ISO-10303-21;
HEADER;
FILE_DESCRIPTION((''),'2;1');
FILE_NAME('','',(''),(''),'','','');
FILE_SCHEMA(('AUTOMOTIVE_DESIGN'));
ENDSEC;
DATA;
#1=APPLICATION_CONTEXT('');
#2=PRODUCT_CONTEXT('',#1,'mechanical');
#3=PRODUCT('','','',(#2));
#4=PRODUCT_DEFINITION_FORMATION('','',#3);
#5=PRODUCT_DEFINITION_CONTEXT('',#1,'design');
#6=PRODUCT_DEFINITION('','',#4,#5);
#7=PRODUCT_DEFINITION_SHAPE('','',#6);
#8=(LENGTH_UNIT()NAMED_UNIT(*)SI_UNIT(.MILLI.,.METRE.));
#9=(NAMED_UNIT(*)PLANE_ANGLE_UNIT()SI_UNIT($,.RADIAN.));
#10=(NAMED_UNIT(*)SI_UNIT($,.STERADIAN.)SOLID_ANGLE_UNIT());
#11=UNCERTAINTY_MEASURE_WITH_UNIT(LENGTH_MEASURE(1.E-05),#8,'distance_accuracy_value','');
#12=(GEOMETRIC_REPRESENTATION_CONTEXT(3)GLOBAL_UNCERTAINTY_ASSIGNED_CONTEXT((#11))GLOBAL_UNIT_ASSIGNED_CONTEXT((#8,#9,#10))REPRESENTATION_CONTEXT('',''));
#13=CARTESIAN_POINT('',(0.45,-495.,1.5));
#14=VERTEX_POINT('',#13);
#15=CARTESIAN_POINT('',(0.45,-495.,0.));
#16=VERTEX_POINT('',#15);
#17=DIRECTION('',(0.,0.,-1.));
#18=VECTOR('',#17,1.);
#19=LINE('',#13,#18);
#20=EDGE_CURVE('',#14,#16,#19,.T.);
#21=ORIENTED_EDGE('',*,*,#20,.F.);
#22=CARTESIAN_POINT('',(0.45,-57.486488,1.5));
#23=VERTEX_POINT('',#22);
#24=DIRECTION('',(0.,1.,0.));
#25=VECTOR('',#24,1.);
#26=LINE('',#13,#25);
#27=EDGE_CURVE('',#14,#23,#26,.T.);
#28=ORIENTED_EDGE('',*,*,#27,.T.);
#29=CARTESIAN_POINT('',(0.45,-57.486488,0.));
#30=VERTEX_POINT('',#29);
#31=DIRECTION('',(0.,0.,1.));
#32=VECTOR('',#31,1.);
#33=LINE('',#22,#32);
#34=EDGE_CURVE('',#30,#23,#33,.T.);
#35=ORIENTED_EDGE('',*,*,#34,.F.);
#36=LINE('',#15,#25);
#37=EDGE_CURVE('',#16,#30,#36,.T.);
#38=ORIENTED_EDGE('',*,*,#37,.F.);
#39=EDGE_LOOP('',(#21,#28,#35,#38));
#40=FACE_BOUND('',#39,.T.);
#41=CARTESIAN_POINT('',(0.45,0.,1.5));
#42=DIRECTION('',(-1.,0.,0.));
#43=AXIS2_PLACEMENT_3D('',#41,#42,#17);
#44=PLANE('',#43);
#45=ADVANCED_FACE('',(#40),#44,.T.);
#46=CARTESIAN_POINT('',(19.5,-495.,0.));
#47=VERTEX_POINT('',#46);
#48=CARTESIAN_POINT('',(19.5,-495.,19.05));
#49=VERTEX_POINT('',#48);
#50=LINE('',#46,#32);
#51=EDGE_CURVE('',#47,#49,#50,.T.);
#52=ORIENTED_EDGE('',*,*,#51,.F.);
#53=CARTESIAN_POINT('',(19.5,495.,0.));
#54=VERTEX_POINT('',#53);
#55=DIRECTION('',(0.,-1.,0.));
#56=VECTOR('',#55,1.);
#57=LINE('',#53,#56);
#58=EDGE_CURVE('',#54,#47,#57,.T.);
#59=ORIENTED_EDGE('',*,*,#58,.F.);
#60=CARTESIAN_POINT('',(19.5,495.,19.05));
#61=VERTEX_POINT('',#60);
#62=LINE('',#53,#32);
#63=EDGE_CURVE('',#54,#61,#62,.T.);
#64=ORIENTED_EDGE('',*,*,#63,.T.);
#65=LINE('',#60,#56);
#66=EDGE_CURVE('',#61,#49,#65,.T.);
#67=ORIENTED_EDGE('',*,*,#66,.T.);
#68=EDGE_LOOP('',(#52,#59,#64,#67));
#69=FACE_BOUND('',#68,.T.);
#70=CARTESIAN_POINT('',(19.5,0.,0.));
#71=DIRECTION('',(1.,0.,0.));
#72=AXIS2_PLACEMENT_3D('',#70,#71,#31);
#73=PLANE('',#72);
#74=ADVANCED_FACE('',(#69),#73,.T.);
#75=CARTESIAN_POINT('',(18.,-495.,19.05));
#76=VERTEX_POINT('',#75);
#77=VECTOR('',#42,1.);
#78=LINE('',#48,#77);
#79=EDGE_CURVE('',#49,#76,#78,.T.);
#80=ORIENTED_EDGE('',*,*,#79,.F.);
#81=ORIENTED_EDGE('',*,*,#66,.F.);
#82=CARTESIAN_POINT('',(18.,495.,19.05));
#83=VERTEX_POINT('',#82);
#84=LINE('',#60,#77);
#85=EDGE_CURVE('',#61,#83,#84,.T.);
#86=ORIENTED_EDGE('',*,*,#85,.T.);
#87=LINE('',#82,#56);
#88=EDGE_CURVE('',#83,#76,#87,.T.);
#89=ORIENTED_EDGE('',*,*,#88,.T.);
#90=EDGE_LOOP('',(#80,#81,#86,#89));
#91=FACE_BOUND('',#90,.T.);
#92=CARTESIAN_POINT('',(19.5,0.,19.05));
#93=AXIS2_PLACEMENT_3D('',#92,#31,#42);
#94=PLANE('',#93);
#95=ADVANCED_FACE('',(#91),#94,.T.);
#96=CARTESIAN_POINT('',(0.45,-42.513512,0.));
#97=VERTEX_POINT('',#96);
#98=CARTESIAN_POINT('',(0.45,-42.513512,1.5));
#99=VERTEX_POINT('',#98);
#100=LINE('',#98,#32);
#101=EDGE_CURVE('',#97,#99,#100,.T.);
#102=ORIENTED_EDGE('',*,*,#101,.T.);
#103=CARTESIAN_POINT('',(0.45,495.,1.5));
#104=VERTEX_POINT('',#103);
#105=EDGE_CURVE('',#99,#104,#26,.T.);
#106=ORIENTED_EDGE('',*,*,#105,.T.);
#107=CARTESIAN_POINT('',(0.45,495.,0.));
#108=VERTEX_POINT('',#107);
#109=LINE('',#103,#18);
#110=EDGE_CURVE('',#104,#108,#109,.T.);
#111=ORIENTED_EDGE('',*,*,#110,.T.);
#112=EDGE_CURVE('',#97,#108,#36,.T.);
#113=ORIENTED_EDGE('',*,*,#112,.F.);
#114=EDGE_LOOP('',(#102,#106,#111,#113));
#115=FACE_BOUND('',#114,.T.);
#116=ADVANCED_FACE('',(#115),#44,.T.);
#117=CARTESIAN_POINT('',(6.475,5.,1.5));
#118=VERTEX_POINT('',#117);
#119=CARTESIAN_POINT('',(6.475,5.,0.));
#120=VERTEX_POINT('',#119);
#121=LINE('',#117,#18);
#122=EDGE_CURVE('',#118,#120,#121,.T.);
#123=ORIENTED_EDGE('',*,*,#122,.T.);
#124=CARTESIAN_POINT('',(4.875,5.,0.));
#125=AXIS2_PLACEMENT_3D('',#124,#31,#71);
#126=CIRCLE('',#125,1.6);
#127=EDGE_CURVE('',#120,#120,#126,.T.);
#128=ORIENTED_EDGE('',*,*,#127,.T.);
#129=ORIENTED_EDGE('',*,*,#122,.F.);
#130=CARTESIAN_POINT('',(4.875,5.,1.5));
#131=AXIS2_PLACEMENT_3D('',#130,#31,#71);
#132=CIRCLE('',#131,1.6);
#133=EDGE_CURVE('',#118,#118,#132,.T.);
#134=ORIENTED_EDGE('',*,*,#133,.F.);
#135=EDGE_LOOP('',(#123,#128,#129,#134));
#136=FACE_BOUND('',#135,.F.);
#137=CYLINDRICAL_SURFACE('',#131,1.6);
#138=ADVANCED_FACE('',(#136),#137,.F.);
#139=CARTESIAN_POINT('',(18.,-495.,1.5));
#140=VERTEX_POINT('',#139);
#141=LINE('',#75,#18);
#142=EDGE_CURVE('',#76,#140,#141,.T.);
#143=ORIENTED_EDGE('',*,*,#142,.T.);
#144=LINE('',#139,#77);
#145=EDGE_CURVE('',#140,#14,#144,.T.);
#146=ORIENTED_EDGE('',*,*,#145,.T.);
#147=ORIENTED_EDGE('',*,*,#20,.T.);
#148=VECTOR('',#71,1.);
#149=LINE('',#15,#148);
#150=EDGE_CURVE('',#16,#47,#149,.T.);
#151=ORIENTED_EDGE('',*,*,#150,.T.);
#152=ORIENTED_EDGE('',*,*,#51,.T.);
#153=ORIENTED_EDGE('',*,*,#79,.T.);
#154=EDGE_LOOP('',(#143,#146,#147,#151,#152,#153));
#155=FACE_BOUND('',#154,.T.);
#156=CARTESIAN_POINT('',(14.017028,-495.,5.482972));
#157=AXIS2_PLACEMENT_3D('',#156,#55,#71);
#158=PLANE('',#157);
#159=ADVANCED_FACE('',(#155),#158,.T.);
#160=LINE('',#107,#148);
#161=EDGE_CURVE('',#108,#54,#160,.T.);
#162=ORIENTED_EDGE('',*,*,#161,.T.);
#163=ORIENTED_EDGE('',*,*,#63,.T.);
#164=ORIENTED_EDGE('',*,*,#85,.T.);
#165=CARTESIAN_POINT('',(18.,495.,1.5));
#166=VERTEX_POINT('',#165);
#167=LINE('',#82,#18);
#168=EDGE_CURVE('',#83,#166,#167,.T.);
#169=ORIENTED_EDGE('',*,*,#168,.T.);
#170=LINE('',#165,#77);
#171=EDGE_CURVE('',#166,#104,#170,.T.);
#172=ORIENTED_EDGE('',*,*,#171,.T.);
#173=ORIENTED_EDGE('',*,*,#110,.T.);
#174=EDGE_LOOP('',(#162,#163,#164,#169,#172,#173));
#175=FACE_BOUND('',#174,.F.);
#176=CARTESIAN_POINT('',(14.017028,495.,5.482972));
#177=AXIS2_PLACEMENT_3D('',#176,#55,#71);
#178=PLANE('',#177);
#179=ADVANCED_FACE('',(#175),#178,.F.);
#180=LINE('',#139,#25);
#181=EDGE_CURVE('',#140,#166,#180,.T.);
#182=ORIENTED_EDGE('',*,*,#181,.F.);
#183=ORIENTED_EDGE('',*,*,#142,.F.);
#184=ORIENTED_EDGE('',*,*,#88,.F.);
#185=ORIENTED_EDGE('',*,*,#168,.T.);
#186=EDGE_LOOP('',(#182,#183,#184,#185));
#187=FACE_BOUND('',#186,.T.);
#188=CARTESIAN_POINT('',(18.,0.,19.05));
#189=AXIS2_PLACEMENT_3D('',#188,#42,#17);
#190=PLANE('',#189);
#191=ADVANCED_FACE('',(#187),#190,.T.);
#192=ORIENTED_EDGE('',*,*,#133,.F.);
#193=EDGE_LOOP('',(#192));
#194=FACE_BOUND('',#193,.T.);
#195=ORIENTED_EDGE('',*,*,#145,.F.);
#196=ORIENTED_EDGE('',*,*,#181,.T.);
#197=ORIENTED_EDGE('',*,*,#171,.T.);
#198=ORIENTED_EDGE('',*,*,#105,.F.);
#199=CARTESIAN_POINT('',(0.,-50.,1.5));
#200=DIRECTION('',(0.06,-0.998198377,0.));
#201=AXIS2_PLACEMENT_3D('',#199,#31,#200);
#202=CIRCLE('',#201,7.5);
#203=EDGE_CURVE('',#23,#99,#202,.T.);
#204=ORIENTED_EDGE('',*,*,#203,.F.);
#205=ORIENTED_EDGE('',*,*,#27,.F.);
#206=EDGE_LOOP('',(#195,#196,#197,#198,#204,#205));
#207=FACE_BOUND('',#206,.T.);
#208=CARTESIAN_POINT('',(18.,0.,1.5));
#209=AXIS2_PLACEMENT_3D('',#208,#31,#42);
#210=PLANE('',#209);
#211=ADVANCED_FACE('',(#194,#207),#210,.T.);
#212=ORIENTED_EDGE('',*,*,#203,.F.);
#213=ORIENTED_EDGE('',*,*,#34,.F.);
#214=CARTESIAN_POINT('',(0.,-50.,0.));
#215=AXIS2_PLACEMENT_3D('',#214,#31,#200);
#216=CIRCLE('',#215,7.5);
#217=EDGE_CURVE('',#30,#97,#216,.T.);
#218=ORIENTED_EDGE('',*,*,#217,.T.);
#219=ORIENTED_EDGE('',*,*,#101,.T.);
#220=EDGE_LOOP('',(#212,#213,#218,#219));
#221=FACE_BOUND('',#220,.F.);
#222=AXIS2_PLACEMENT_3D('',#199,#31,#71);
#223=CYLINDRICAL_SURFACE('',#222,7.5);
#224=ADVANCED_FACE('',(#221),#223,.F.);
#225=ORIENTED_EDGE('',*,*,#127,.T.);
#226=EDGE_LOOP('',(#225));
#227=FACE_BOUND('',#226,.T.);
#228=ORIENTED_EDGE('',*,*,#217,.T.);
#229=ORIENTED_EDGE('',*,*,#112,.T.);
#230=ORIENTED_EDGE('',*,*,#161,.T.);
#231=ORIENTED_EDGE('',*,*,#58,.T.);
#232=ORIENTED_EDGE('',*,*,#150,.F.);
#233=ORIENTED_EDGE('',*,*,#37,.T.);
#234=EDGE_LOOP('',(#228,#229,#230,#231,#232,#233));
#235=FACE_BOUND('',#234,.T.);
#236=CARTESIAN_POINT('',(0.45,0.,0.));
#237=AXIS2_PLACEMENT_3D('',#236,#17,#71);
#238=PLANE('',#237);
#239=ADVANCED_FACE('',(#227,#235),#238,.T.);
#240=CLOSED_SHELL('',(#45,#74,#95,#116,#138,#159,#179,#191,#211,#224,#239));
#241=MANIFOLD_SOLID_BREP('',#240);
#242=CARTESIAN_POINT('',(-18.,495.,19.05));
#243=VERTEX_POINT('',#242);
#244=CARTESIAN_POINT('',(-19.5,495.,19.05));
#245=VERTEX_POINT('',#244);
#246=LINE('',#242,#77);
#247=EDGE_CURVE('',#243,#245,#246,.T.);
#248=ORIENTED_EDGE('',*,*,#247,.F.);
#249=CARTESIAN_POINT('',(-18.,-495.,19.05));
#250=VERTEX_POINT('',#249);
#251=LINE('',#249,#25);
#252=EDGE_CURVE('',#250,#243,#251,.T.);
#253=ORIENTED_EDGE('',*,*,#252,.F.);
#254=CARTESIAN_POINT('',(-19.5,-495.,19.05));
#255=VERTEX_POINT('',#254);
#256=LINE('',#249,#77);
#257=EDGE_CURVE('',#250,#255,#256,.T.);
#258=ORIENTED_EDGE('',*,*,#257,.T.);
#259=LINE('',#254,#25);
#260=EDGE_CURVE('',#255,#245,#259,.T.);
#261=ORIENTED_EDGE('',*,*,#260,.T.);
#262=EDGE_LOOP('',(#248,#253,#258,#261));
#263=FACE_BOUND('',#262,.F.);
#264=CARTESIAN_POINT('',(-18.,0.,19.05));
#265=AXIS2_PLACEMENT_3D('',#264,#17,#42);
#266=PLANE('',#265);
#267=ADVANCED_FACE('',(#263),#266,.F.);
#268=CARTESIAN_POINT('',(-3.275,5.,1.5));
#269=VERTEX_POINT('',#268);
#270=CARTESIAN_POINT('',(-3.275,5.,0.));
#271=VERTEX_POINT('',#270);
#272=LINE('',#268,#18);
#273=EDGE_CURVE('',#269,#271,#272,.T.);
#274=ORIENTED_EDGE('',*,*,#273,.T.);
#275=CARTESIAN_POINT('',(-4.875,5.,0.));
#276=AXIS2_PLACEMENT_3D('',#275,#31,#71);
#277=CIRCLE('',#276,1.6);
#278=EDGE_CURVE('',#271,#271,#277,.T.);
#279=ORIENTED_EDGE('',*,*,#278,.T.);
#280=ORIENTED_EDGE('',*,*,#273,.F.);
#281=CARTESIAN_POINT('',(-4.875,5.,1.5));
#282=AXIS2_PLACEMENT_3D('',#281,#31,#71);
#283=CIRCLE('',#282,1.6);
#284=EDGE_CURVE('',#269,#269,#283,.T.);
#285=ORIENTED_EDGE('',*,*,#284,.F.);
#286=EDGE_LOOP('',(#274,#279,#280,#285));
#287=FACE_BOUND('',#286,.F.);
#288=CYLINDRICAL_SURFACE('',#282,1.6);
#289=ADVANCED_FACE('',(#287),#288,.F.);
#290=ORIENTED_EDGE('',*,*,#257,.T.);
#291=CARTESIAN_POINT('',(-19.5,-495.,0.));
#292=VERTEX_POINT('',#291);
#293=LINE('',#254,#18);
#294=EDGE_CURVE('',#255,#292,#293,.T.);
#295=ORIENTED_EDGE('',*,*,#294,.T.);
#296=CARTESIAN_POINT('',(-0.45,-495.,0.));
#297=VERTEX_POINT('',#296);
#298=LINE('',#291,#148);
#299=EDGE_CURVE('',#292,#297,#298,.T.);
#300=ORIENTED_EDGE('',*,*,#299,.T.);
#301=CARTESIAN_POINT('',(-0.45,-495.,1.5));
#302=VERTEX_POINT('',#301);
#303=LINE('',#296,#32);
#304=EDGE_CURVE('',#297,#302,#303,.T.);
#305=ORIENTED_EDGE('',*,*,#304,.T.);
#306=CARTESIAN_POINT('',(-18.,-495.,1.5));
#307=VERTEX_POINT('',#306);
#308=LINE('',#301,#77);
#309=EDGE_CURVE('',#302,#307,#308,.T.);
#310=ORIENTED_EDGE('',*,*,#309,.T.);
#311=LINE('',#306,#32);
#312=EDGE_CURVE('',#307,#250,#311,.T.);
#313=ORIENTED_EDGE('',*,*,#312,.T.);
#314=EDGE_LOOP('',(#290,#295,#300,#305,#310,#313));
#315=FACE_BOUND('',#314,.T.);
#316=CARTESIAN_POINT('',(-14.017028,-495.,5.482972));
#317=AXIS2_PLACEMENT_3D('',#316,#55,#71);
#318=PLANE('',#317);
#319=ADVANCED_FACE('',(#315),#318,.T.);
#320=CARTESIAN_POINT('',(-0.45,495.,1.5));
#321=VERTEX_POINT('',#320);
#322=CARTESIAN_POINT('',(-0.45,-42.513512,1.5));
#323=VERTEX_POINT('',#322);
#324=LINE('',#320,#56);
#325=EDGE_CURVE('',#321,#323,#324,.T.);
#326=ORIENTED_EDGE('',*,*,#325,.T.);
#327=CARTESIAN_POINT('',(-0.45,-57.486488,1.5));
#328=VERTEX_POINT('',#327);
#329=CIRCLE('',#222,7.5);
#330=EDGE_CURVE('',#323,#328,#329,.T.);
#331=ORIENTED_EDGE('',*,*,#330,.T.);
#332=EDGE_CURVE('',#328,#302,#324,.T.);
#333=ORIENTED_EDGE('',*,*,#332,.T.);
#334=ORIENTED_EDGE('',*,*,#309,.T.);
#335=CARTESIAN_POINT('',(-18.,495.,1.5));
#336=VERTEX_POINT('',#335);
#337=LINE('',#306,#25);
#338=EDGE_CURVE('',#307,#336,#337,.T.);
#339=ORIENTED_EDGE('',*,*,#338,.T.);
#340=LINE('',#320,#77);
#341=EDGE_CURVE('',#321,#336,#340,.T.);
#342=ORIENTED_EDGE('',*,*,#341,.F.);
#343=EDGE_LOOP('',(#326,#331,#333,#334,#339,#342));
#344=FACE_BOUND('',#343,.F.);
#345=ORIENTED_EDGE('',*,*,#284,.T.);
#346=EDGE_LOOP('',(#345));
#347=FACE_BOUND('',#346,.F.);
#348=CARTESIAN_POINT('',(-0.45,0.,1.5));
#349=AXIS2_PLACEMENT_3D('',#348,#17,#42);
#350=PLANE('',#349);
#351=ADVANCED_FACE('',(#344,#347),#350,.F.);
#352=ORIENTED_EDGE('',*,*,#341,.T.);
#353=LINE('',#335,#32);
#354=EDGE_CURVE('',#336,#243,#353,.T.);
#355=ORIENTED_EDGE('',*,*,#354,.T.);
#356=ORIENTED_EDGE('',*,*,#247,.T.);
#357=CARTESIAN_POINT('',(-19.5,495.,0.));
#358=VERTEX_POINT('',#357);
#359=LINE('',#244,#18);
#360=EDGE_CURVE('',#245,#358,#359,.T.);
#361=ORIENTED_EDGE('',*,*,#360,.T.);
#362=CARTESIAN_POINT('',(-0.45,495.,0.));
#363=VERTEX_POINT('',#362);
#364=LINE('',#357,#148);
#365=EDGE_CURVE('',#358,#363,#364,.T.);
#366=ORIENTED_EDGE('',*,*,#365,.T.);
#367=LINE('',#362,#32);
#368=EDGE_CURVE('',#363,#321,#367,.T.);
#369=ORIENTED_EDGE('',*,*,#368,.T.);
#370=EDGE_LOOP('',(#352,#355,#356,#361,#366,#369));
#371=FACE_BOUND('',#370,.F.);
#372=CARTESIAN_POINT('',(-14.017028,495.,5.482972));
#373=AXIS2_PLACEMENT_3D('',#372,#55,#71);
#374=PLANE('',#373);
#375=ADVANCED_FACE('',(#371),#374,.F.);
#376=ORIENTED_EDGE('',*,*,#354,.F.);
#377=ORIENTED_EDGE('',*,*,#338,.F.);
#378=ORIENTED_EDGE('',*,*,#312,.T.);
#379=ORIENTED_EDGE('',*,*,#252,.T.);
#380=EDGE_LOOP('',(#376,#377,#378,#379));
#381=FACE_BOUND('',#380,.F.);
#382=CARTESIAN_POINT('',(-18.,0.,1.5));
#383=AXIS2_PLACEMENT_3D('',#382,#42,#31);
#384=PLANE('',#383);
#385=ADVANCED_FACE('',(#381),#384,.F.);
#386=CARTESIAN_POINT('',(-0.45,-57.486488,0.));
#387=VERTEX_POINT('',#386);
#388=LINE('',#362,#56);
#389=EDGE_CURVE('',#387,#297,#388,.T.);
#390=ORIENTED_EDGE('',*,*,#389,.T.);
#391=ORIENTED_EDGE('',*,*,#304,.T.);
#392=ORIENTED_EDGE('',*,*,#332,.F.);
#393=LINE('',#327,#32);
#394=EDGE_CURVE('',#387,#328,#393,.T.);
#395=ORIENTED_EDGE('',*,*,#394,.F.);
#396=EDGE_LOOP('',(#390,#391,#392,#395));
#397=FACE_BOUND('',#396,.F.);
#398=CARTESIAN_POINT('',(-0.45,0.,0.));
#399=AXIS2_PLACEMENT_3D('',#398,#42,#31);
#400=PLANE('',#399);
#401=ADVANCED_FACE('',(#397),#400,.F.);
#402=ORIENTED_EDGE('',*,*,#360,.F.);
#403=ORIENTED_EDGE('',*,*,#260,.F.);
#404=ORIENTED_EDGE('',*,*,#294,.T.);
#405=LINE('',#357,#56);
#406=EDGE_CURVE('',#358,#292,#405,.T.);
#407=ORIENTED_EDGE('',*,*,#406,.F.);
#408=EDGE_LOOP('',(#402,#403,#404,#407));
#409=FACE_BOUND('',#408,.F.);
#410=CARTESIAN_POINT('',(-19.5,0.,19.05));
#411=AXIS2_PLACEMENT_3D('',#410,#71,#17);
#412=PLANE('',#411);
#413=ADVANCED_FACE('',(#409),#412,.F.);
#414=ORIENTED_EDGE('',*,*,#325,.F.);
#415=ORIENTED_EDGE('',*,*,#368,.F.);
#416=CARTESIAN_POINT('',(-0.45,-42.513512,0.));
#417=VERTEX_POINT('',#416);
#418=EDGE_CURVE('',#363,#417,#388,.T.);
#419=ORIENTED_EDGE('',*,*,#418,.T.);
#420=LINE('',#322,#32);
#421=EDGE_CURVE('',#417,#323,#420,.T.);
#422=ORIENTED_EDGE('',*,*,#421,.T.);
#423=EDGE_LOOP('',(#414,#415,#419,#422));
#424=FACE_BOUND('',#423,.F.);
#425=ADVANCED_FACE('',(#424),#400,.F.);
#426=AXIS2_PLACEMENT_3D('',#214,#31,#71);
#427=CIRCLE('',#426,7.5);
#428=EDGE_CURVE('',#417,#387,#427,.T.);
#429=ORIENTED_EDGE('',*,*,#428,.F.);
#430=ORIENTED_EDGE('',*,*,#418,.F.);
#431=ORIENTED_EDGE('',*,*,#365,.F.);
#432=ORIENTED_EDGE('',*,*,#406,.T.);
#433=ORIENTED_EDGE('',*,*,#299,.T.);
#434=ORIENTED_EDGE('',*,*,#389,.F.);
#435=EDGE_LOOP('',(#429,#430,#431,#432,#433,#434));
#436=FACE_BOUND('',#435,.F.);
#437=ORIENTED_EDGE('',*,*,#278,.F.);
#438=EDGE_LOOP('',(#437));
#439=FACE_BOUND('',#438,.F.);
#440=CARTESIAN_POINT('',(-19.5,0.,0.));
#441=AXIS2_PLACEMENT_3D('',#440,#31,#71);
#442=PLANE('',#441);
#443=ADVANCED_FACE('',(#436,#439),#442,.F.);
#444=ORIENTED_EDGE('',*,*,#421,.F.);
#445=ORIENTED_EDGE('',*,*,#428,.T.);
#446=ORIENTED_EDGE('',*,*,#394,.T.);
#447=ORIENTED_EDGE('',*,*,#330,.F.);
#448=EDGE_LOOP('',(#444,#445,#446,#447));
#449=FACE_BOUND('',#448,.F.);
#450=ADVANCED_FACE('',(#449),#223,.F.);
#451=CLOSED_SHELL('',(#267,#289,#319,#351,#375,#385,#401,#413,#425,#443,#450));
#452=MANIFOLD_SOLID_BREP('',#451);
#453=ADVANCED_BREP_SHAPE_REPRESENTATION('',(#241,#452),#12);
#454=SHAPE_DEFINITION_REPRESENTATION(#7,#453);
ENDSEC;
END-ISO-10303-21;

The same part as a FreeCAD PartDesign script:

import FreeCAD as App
import Part
import Sketcher

V = App.Vector

doc = App.newDocument("Part")
params = doc.addObject("Spreadsheet::Sheet", "Params")
for row, (alias, value) in enumerate([
    ("sketch1_width", "1.5 mm"),
    ("sketch1_width2", "19.05 mm"),
    ("pad1_length", "990 mm"),
    ("sketch2_diameter", "3.2 mm"),
    ("sketch3_diameter", "15 mm"),
], start=1):
    params.set(f"A{row}", alias)
    params.set(f"B{row}", "=" + value)
    params.setAlias(f"B{row}", alias)

body = doc.addObject("PartDesign::Body", "Body")
body.AllowCompound = True

sketch1 = doc.addObject("Sketcher::SketchObject", "Sketch")
body.addObject(sketch1)
sketch1.AttachmentSupport = (doc.XZ_Plane, [""])
sketch1.MapMode = "FlatFace"
sketch1.addGeometry([
    Part.LineSegment(V(-19.5, 19.05, 0), V(-19.5, 0, 0)),
    Part.LineSegment(V(-19.5, 0, 0), V(-0.45, 0, 0)),
    Part.LineSegment(V(-0.45, 0, 0), V(-0.45, 1.5, 0)),
    Part.LineSegment(V(-0.45, 1.5, 0), V(-18, 1.5, 0)),
    Part.LineSegment(V(-18, 1.5, 0), V(-18, 19.05, 0)),
    Part.LineSegment(V(-18, 19.05, 0), V(-19.5, 19.05, 0)),
    Part.LineSegment(V(0.45, 0, 0), V(19.5, 0, 0)),
    Part.LineSegment(V(19.5, 0, 0), V(19.5, 19.05, 0)),
    Part.LineSegment(V(19.5, 19.05, 0), V(18, 19.05, 0)),
    Part.LineSegment(V(18, 19.05, 0), V(18, 1.5, 0)),
    Part.LineSegment(V(18, 1.5, 0), V(0.45, 1.5, 0)),
    Part.LineSegment(V(0.45, 1.5, 0), V(0.45, 0, 0)),
], False)
sketch1.addConstraint([
    Sketcher.Constraint("Coincident", 0, 2, 1, 1),
    Sketcher.Constraint("Coincident", 1, 2, 2, 1),
    Sketcher.Constraint("Coincident", 2, 2, 3, 1),
    Sketcher.Constraint("Coincident", 3, 2, 4, 1),
    Sketcher.Constraint("Coincident", 4, 2, 5, 1),
    Sketcher.Constraint("Coincident", 5, 2, 0, 1),
    Sketcher.Constraint("Coincident", 6, 2, 7, 1),
    Sketcher.Constraint("Coincident", 7, 2, 8, 1),
    Sketcher.Constraint("Coincident", 8, 2, 9, 1),
    Sketcher.Constraint("Coincident", 9, 2, 10, 1),
    Sketcher.Constraint("Coincident", 10, 2, 11, 1),
    Sketcher.Constraint("Coincident", 11, 2, 6, 1),
    Sketcher.Constraint("Vertical", 0),
    Sketcher.Constraint("Horizontal", 1),
    Sketcher.Constraint("Vertical", 2),
    Sketcher.Constraint("Horizontal", 3),
    Sketcher.Constraint("Vertical", 4),
    Sketcher.Constraint("Horizontal", 5),
    Sketcher.Constraint("Horizontal", 6),
    Sketcher.Constraint("Vertical", 7),
    Sketcher.Constraint("Horizontal", 8),
    Sketcher.Constraint("Vertical", 9),
    Sketcher.Constraint("Horizontal", 10),
    Sketcher.Constraint("Vertical", 11),
    Sketcher.Constraint("Symmetric", 0, 2, 6, 2, -1, 1),
    Sketcher.Constraint("Symmetric", 4, 2, 8, 2, -2),
    Sketcher.Constraint("Symmetric", 2, 2, 10, 2, -2),
    Sketcher.Constraint("PointOnObject", 0, 2, -1),
    Sketcher.Constraint("Equal", 6, 0),
    Sketcher.Constraint("Equal", 8, 2),
    Sketcher.Constraint("DistanceX", 5, 2, 5, 1, 1.5),
    Sketcher.Constraint("DistanceX", 3, 2, -1, 1, 18.0),
    Sketcher.Constraint("DistanceX", 1, 1, 1, 2, 19.05),
])
sketch1.setExpression("Constraints[30]", "Params.sketch1_width")
sketch1.setExpression("Constraints[32]", "Params.sketch1_width2")
pad1 = doc.addObject("PartDesign::Pad", "Pad")
body.addObject(pad1)
pad1.Profile = sketch1
pad1.setExpression("Length", "Params.pad1_length")
pad1.Midplane = True

sketch2 = doc.addObject("Sketcher::SketchObject", "Sketch001")
body.addObject(sketch2)
sketch2.AttachmentSupport = (doc.XY_Plane, [""])
sketch2.MapMode = "FlatFace"
sketch2.AttachmentOffset = App.Placement(V(0, 0, 1.5), App.Rotation())
sketch2.addGeometry([
    Part.Circle(V(-4.875, 5, 0), V(0, 0, 1), 1.6),
    Part.Circle(V(4.875, 5, 0), V(0, 0, 1), 1.6),
], False)
sketch2.addConstraint([
    Sketcher.Constraint("Equal", 0, 1),
    Sketcher.Constraint("Symmetric", 0, 3, 1, 3, -2),
    Sketcher.Constraint("Diameter", 0, 3.2),
    Sketcher.Constraint("DistanceY", -1, 1, 0, 3, 5.0),
    Sketcher.Constraint("DistanceX", 0, 3, 1, 3, 9.75),
])
sketch2.setExpression("Constraints[2]", "Params.sketch2_diameter")
pocket1 = doc.addObject("PartDesign::Pocket", "Pocket")
body.addObject(pocket1)
pocket1.Profile = sketch2
pocket1.Type = "ThroughAll"

sketch3 = doc.addObject("Sketcher::SketchObject", "Sketch002")
body.addObject(sketch3)
sketch3.AttachmentSupport = (doc.XY_Plane, [""])
sketch3.MapMode = "FlatFace"
sketch3.AttachmentOffset = App.Placement(V(0, 0, 1.5), App.Rotation())
sketch3.addGeometry(Part.Circle(V(0, -50, 0), V(0, 0, 1), 7.5), False)
sketch3.addConstraint([
    Sketcher.Constraint("PointOnObject", 0, 3, -2),
    Sketcher.Constraint("Diameter", 0, 15.0),
    Sketcher.Constraint("DistanceY", 0, 3, -1, 1, 50.0),
])
sketch3.setExpression("Constraints[1]", "Params.sketch3_diameter")
pocket2 = doc.addObject("PartDesign::Pocket", "Pocket001")
body.addObject(pocket2)
pocket2.Profile = sketch3
pocket2.Type = "ThroughAll"

doc.recompute()
